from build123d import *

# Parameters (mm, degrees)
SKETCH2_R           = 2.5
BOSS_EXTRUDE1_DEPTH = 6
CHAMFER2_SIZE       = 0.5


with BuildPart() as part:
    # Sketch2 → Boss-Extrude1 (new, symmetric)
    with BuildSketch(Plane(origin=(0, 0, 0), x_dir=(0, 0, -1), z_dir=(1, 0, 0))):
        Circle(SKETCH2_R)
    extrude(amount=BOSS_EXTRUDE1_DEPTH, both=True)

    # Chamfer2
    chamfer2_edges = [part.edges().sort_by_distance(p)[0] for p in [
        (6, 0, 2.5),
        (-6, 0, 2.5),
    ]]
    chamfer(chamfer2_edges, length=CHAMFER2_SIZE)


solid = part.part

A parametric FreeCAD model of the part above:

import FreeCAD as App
import Part
import Sketcher
from FreeCAD import Vector


def edges_at(feature, points):
    """Names of the edges that pass closest to the given points."""
    edges = feature.Shape.Edges
    near = lambda p: min(range(len(edges)), key=lambda i: edges[i].distToShape(Part.Vertex(*p))[0])
    return sorted({f"Edge{near(p) + 1}" for p in points})

doc = App.newDocument("Part")
body = doc.addObject("PartDesign::Body", "Body")

sketch1 = body.newObject("Sketcher::SketchObject", "Sketch")
sketch1.AttachmentSupport = (doc.getObject("YZ_Plane"), [""])
sketch1.MapMode = "FlatFace"
sketch1.addGeometry(Part.Circle(Vector(0, 0, 0), Vector(0, 0, 1), 2.5), False)
sketch1.addConstraint([
    Sketcher.Constraint("Coincident", 0, 3, -1, 1),
    Sketcher.Constraint("Diameter", 0, 5.0),
])
pad1 = body.newObject("PartDesign::Pad", "Pad")
pad1.Profile = sketch1
pad1.Length = 12
pad1.Midplane = True
doc.recompute()

chamfer = body.newObject("PartDesign::Chamfer", "Chamfer")
chamfer.Base = (pad1, edges_at(pad1, [(6, 0, 2.5), (-6, 0, 2.5)]))
chamfer.Size = 0.5

doc.recompute()
